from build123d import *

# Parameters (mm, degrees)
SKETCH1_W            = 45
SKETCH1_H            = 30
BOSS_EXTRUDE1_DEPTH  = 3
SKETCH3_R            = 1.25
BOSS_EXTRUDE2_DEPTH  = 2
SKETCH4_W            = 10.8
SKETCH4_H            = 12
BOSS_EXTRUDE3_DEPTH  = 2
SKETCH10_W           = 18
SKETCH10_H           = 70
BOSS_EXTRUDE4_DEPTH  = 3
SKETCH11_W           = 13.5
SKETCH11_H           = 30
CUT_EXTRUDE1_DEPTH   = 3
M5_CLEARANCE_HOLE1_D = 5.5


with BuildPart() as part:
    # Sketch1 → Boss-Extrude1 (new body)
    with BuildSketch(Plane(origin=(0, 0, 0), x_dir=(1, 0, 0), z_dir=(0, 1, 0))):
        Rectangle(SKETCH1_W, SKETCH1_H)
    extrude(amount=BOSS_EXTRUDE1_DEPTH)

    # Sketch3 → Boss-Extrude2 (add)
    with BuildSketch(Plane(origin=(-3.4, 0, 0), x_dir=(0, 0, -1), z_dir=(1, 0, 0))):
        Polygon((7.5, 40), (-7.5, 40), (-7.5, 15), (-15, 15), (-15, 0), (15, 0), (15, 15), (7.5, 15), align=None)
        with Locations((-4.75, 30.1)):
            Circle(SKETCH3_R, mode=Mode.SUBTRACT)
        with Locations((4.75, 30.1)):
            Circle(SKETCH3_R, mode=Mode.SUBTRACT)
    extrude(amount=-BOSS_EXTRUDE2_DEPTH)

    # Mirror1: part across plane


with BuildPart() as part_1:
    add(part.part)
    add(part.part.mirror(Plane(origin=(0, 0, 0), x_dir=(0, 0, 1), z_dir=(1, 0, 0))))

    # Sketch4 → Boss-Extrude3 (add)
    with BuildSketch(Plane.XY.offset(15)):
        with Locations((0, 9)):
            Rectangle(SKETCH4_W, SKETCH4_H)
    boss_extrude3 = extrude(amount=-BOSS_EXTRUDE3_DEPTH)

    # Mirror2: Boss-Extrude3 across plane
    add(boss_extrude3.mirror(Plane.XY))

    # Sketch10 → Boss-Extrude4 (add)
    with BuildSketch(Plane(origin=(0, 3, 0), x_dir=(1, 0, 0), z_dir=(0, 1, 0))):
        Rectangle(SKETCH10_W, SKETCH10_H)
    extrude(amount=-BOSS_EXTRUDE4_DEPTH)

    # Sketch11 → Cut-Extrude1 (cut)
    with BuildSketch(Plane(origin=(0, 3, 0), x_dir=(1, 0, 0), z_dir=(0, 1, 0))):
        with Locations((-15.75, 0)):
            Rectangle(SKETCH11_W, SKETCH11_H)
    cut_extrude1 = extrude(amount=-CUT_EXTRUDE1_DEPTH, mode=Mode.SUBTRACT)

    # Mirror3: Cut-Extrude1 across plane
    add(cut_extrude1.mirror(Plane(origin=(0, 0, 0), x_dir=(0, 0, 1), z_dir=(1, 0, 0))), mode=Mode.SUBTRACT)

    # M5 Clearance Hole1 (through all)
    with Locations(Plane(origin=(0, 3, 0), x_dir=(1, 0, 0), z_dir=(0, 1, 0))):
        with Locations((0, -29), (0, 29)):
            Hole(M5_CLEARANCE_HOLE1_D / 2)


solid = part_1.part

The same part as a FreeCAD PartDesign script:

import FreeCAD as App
import Part
import Sketcher
Q = App.Units.Quantity

doc = App.newDocument("Part")
body = doc.addObject("PartDesign::Body", "Body")

# Sketch on XZ plane
sketch1 = body.newObject("Sketcher::SketchObject", "Sketch")
sketch1.AttachmentSupport = (doc.getObject("XZ_Plane"), [""])
sketch1.MapMode = "FlatFace"
sketch1.addGeometry([
    Part.LineSegment(App.Vector(-22, -15, 0), App.Vector(-22, 15, 0)),
    Part.LineSegment(App.Vector(-22, 15, 0), App.Vector(22, 15, 0)),
    Part.LineSegment(App.Vector(22, 15, 0), App.Vector(22, -15, 0)),
    Part.LineSegment(App.Vector(22, -15, 0), App.Vector(-22, -15, 0)),
], False)
sketch1.addConstraint([
    Sketcher.Constraint("Coincident", 0, 2, 1, 1),
    Sketcher.Constraint("Coincident", 1, 2, 2, 1),
    Sketcher.Constraint("Coincident", 2, 2, 3, 1),
    Sketcher.Constraint("Coincident", 3, 2, 0, 1),
    Sketcher.Constraint("Vertical", 0),
    Sketcher.Constraint("Horizontal", 1),
    Sketcher.Constraint("Vertical", 2),
    Sketcher.Constraint("Horizontal", 3),
    Sketcher.Constraint("Symmetric", 0, 2, 2, 2, -1, 1),
    Sketcher.Constraint("DistanceX", 1, 1, 1, 2, Q("45 mm")),
    Sketcher.Constraint("DistanceY", 0, 1, 0, 2, Q("30 mm")),
])
pad1 = body.newObject("PartDesign::Pad", "Pad")
pad1.Profile = sketch1
pad1.Length = 3
pad1.Reversed = True

# Sketch on YZ plane
sketch2 = body.newObject("Sketcher::SketchObject", "Sketch001")
sketch2.AttachmentSupport = (doc.getObject("YZ_Plane"), [""])
sketch2.MapMode = "FlatFace"
sketch2.AttachmentOffset = App.Placement(App.Vector(0, 0, -3.4), App.Rotation())
sketch2.addGeometry([
    Part.LineSegment(App.Vector(40, -7.5, 0), App.Vector(40, 7.5, 0)),  # 0
    Part.LineSegment(App.Vector(40, 7.5, 0), App.Vector(15, 7.5, 0)),  # 1
    Part.LineSegment(App.Vector(15, 7.5, 0), App.Vector(15, 15, 0)),  # 2
    Part.LineSegment(App.Vector(15, 15, 0), App.Vector(0, 15, 0)),  # 3
    Part.LineSegment(App.Vector(0, 15, 0), App.Vector(0, -15, 0)),  # 4
    Part.LineSegment(App.Vector(0, -15, 0), App.Vector(15, -15, 0)),  # 5
    Part.LineSegment(App.Vector(15, -15, 0), App.Vector(15, -7.5, 0)),  # 6
    Part.LineSegment(App.Vector(15, -7.5, 0), App.Vector(40, -7.5, 0)),  # 7
    Part.Circle(App.Vector(30.1, 4.8, 0), App.Vector(0, 0, 1), 1.2),  # 8
    Part.Circle(App.Vector(30.1, -4.8, 0), App.Vector(0, 0, 1), 1.2),  # 9
], False)
sketch2.addConstraint([
    Sketcher.Constraint("Coincident", 0, 2, 1, 1),
    Sketcher.Constraint("Coincident", 1, 2, 2, 1),
    Sketcher.Constraint("Coincident", 2, 2, 3, 1),
    Sketcher.Constraint("Coincident", 3, 2, 4, 1),
    Sketcher.Constraint("Coincident", 4, 2, 5, 1),
    Sketcher.Constraint("Coincident", 5, 2, 6, 1),
    Sketcher.Constraint("Coincident", 6, 2, 7, 1),
    Sketcher.Constraint("Coincident", 7, 2, 0, 1),
    Sketcher.Constraint("Vertical", 0),
    Sketcher.Constraint("Horizontal", 1),
    Sketcher.Constraint("Vertical", 2),
    Sketcher.Constraint("Horizontal", 3),
    Sketcher.Constraint("Vertical", 4),
    Sketcher.Constraint("Horizontal", 5),
    Sketcher.Constraint("Vertical", 6),
    Sketcher.Constraint("Horizontal", 7),
    Sketcher.Constraint("Equal", 8, 9),
    Sketcher.Constraint("Symmetric", 3, 2, 4, 2, -1, 1),
    Sketcher.Constraint("Symmetric", 8, 3, 9, 3, -1),
    Sketcher.Constraint("Symmetric", 1, 2, 6, 2, -1),
    Sketcher.Constraint("Equal", 5, 0),
    Sketcher.Constraint("Diameter", 8, Q("2.5 mm")),
    Sketcher.Constraint("DistanceX", 1, 2, 1, 1, Q("25 mm")),
    Sketcher.Constraint("DistanceX", 3, 2, 3, 1, Q("15 mm")),
    Sketcher.Constraint("DistanceY", 4, 2, 4, 1, Q("30 mm")),
    Sketcher.Constraint("DistanceX", -1, 1, 8, 3, Q("30.1 mm")),
    Sketcher.Constraint("DistanceY", 9, 3, 8, 3, Q("9.5 mm")),
])
pad2 = body.newObject("PartDesign::Pad", "Pad001")
pad2.Profile = sketch2
pad2.Length = 2
pad2.Reversed = True
body2 = doc.addObject("PartDesign::Body", "Body001")
doc.recompute()

body2.BaseFeature = body
doc.recompute()

mirroring = doc.addObject("Part::Mirroring", "Mirroring")
mirroring.Source = body
mirroring.Base = App.Vector(0, 0, 0)
mirroring.Normal = App.Vector(1, 0, 0)
body3 = doc.addObject("PartDesign::Body", "Body002")
body3.BaseFeature = mirroring
boolean = body2.newObject("PartDesign::Boolean", "Boolean")
boolean.Type = "Fuse"
boolean.addObjects([body3])
doc.recompute()

# Sketch on XY plane
sketch3 = body2.newObject("Sketcher::SketchObject", "Sketch002")
sketch3.AttachmentSupport = (doc.getObject("XY_Plane001"), [""])
sketch3.MapMode = "FlatFace"
sketch3.AttachmentOffset = App.Placement(App.Vector(0, 0, 15), App.Rotation())
sketch3.addGeometry([
    Part.LineSegment(App.Vector(-5, 15, 0), App.Vector(-5, 3, 0)),
    Part.LineSegment(App.Vector(-5, 3, 0), App.Vector(5, 3, 0)),
    Part.LineSegment(App.Vector(5, 3, 0), App.Vector(5, 15, 0)),
    Part.LineSegment(App.Vector(5, 15, 0), App.Vector(-5, 15, 0)),
], False)
sketch3.addConstraint([
    Sketcher.Constraint("Coincident", 0, 2, 1, 1),
    Sketcher.Constraint("Coincident", 1, 2, 2, 1),
    Sketcher.Constraint("Coincident", 2, 2, 3, 1),
    Sketcher.Constraint("Coincident", 3, 2, 0, 1),
    Sketcher.Constraint("Vertical", 0),
    Sketcher.Constraint("Horizontal", 1),
    Sketcher.Constraint("Vertical", 2),
    Sketcher.Constraint("Horizontal", 3),
    Sketcher.Constraint("DistanceY", 0, 2, 0, 1, Q("12 mm")),
    Sketcher.Constraint("DistanceX", 1, 1, 1, 2, Q("10.8 mm")),
    Sketcher.Constraint("DistanceY", -1, 1, 0, 2, Q("3 mm")),
    Sketcher.Constraint("DistanceX", 0, 2, -1, 1, Q("5.4 mm")),
])
pad3 = body2.newObject("PartDesign::Pad", "Pad002")
pad3.Profile = sketch3
pad3.Length = 2
pad3.Reversed = True
doc.recompute()

mirrored = body2.newObject("PartDesign::Mirrored", "Mirrored")
mirrored.Originals = [pad3]
mirrored.MirrorPlane = (doc.getObject("XY_Plane001"), [""])
body2.Tip = mirrored

# Sketch on XZ plane
sketch4 = body2.newObject("Sketcher::SketchObject", "Sketch003")
sketch4.AttachmentSupport = (doc.getObject("XZ_Plane001"), [""])
sketch4.MapMode = "FlatFace"
sketch4.AttachmentOffset = App.Placement(App.Vector(0, 0, -3), App.Rotation())
sketch4.addGeometry([
    Part.LineSegment(App.Vector(-9, -35, 0), App.Vector(-9, 35, 0)),
    Part.LineSegment(App.Vector(-9, 35, 0), App.Vector(9, 35, 0)),
    Part.LineSegment(App.Vector(9, 35, 0), App.Vector(9, -35, 0)),
    Part.LineSegment(App.Vector(9, -35, 0), App.Vector(-9, -35, 0)),
], False)
sketch4.addConstraint([
    Sketcher.Constraint("Coincident", 0, 2, 1, 1),
    Sketcher.Constraint("Coincident", 1, 2, 2, 1),
    Sketcher.Constraint("Coincident", 2, 2, 3, 1),
    Sketcher.Constraint("Coincident", 3, 2, 0, 1),
    Sketcher.Constraint("Vertical", 0),
    Sketcher.Constraint("Horizontal", 1),
    Sketcher.Constraint("Vertical", 2),
    Sketcher.Constraint("Horizontal", 3),
    Sketcher.Constraint("Symmetric", 0, 2, 2, 2, -1, 1),
    Sketcher.Constraint("DistanceX", 1, 1, 1, 2, Q("18 mm")),
    Sketcher.Constraint("DistanceY", 0, 1, 0, 2, Q("70 mm")),
])
pad4 = body2.newObject("PartDesign::Pad", "Pad003")
pad4.Profile = sketch4
pad4.Length = 3

# Sketch on XZ plane
sketch5 = body2.newObject("Sketcher::SketchObject", "Sketch004")
sketch5.AttachmentSupport = (doc.getObject("XZ_Plane001"), [""])
sketch5.MapMode = "FlatFace"
sketch5.AttachmentOffset = App.Placement(App.Vector(0, 0, -3), App.Rotation())
sketch5.addGeometry([
    Part.LineSegment(App.Vector(-22, -15, 0), App.Vector(-22, 15, 0)),
    Part.LineSegment(App.Vector(-22, 15, 0), App.Vector(-9, 15, 0)),
    Part.LineSegment(App.Vector(-9, 15, 0), App.Vector(-9, -15, 0)),
    Part.LineSegment(App.Vector(-9, -15, 0), App.Vector(-22, -15, 0)),
], False)
sketch5.addConstraint([
    Sketcher.Constraint("Coincident", 0, 2, 1, 1),
    Sketcher.Constraint("Coincident", 1, 2, 2, 1),
    Sketcher.Constraint("Coincident", 2, 2, 3, 1),
    Sketcher.Constraint("Coincident", 3, 2, 0, 1),
    Sketcher.Constraint("Vertical", 0),
    Sketcher.Constraint("Horizontal", 1),
    Sketcher.Constraint("Vertical", 2),
    Sketcher.Constraint("Horizontal", 3),
    Sketcher.Constraint("DistanceY", 0, 1, 0, 2, Q("30 mm")),
    Sketcher.Constraint("DistanceX", 1, 1, 1, 2, Q("13.5 mm")),
    Sketcher.Constraint("DistanceY", -1, 1, 0, 2, Q("15 mm")),
    Sketcher.Constraint("DistanceX", 1, 2, -1, 1, Q("9 mm")),
])
pocket1 = body2.newObject("PartDesign::Pocket", "Pocket")
pocket1.Profile = sketch5
pocket1.Length = 3
pocket1.Reversed = True
doc.recompute()

mirrored2 = body2.newObject("PartDesign::Mirrored", "Mirrored001")
mirrored2.Originals = [pocket1]
mirrored2.MirrorPlane = (doc.getObject("YZ_Plane001"), [""])
body2.Tip = mirrored2

# Sketch on XZ plane
sketch6 = body2.newObject("Sketcher::SketchObject", "Sketch005")
sketch6.AttachmentSupport = (doc.getObject("XZ_Plane001"), [""])
sketch6.MapMode = "FlatFace"
sketch6.AttachmentOffset = App.Placement(App.Vector(0, 0, -3), App.Rotation())
sketch6.addGeometry([
    Part.Circle(App.Vector(0, 29, 0), App.Vector(0, 0, 1), 2.8),
    Part.Circle(App.Vector(0, -29, 0), App.Vector(0, 0, 1), 2.8),
], False)
sketch6.addConstraint([
    Sketcher.Constraint("Equal", 0, 1),
    Sketcher.Constraint("Symmetric", 0, 3, 1, 3, -1, 1),
    Sketcher.Constraint("PointOnObject", 0, 3, -2),
    Sketcher.Constraint("Diameter", 0, Q("5.5 mm")),
    Sketcher.Constraint("DistanceY", -1, 1, 0, 3, Q("29 mm")),
])
doc.recompute()
hole = body2.newObject("PartDesign::Hole", "Hole")
hole.Profile = sketch6
hole.ThreadType = "None"
hole.Diameter = 5.5
hole.DepthType = "ThroughAll"
hole.Reversed = True
mirroring.Visibility = False

doc.recompute()
